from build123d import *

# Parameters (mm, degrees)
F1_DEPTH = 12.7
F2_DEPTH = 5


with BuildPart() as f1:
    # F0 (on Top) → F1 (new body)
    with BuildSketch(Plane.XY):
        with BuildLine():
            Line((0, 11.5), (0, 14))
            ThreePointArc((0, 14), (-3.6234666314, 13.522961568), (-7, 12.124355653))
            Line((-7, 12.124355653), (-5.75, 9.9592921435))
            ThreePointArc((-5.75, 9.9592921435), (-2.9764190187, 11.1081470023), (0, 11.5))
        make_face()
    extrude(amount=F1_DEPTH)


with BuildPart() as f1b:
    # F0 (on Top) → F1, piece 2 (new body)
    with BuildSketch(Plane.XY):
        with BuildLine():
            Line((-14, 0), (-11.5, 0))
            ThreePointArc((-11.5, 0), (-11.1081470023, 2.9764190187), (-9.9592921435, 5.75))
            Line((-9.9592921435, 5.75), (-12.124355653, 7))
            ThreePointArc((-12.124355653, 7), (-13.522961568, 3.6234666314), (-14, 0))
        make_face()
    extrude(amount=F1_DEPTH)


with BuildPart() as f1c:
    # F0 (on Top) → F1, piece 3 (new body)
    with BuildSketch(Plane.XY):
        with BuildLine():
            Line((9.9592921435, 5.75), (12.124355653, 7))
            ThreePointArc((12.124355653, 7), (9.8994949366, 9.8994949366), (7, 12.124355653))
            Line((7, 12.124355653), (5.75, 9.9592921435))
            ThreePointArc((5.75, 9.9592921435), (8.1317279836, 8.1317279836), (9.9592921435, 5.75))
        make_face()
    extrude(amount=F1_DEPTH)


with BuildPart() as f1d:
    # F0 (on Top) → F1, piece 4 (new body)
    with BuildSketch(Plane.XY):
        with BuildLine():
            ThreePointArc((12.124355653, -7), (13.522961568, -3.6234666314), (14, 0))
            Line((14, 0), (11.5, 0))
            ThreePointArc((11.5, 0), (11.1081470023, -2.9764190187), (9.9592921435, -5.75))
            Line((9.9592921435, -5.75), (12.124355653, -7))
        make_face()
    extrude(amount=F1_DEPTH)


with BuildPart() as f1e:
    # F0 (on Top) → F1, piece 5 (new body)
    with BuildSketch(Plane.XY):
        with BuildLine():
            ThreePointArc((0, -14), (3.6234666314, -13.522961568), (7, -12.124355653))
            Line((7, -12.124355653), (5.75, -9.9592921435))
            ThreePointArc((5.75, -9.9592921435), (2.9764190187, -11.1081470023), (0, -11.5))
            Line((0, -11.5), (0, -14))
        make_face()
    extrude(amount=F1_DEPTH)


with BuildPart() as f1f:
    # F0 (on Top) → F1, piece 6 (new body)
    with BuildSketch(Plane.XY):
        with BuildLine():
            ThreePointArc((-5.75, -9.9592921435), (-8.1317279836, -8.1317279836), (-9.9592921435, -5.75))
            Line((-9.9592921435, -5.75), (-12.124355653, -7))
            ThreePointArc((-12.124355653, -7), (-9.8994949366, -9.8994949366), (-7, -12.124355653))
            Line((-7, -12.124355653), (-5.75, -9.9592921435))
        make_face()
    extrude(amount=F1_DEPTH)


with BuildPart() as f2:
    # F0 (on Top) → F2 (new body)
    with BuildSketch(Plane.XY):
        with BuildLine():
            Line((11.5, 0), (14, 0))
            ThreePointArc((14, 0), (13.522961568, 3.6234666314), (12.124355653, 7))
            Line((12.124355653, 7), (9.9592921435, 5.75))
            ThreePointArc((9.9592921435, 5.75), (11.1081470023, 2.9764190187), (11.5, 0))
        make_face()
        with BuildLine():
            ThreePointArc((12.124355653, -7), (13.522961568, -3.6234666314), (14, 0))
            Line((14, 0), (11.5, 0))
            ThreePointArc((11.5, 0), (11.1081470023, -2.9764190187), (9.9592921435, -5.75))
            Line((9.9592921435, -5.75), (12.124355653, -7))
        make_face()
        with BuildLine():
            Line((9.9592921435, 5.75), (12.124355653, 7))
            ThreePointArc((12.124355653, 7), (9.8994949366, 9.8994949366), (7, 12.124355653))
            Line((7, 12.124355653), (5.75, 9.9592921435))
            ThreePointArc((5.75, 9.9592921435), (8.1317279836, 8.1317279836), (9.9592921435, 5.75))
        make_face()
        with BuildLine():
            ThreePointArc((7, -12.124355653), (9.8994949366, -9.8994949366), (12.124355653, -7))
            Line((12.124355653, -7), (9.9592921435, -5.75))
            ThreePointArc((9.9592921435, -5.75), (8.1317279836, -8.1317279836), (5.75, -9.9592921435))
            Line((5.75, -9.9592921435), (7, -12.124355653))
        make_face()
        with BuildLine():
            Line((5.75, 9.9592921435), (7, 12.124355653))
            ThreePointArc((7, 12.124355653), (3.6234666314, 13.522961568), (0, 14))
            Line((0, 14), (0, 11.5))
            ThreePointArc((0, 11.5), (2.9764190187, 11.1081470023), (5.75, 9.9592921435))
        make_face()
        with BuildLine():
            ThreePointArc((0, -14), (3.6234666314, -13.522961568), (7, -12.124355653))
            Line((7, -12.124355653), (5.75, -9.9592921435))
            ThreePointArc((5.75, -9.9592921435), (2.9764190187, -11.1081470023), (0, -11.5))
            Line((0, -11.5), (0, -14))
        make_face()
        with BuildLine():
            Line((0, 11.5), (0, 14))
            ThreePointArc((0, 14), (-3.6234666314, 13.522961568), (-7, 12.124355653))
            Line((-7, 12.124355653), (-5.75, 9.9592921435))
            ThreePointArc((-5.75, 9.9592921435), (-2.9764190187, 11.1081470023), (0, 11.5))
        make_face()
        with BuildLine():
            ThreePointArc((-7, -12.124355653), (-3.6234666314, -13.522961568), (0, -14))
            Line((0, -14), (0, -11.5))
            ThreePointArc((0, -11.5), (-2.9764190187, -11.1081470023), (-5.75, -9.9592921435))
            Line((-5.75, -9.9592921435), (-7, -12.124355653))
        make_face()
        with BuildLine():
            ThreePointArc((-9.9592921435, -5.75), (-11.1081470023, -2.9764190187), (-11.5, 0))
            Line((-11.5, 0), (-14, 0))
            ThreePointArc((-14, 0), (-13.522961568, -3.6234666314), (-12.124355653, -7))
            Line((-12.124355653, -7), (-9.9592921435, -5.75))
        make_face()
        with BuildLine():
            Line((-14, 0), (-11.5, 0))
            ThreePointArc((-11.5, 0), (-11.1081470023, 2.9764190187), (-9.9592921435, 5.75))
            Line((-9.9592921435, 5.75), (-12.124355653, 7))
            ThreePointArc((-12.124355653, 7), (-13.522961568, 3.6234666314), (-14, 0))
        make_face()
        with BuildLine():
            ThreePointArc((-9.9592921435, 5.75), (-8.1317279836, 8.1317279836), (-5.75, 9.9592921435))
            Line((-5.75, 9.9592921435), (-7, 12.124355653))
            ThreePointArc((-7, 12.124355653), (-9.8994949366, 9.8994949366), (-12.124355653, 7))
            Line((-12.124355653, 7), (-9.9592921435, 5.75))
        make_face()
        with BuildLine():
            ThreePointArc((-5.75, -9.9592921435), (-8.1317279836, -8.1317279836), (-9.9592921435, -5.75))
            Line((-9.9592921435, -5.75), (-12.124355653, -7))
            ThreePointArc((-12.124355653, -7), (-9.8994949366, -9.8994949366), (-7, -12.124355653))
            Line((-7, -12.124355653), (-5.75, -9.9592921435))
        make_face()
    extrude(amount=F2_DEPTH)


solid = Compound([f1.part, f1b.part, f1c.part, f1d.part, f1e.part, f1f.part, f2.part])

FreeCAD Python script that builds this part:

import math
import FreeCAD as App
import Part
import Sketcher
Q = App.Units.Quantity

doc = App.newDocument("Part")
body = doc.addObject("PartDesign::Body", "Body")

# Sketch on XY plane
sketch1 = body.newObject("Sketcher::SketchObject", "Sketch")
sketch1.AttachmentSupport = (doc.getObject("XY_Plane"), [""])
sketch1.MapMode = "FlatFace"
sketch1.addGeometry([
    Part.LineSegment(App.Vector(0, 11.5, 0), App.Vector(0, 14, 0)),
    Part.ArcOfCircle(Part.Circle(App.Vector(0, 0, 0), App.Vector(0, 0, 1), 14), math.radians(90), math.radians(120)),
    Part.LineSegment(App.Vector(-7, 12.1, 0), App.Vector(-5.8, 10, 0)),
    Part.ArcOfCircle(Part.Circle(App.Vector(0, 0, 0), App.Vector(0, 0, 1), 11.5), math.radians(90), math.radians(120)),
], False)
sketch1.addConstraint([
    Sketcher.Constraint("Coincident", 0, 2, 1, 1),
    Sketcher.Constraint("Coincident", 1, 2, 2, 1),
    Sketcher.Constraint("Coincident", 2, 2, 3, 2),
    Sketcher.Constraint("Coincident", 3, 1, 0, 1),
    Sketcher.Constraint("Vertical", 0),
    Sketcher.Constraint("Coincident", 1, 3, -1, 1),
    Sketcher.Constraint("Coincident", 3, 3, -1, 1),
    Sketcher.Constraint("PointOnObject", 0, 2, -2),
    Sketcher.Constraint("Radius", 1, 14.0),
    Sketcher.Constraint("Radius", 3, 11.5),
    Sketcher.Constraint("Angle", 2, Q("-60 deg")),
    Sketcher.Constraint("DistanceX", 1, 2, -1, 1, 7.0),
])
pad1 = body.newObject("PartDesign::Pad", "Pad")
pad1.Profile = sketch1
pad1.Length = 12.7
body2 = doc.addObject("PartDesign::Body", "Body001")

# Sketch on XY plane
sketch2 = body2.newObject("Sketcher::SketchObject", "Sketch001")
sketch2.AttachmentSupport = (doc.getObject("XY_Plane001"), [""])
sketch2.MapMode = "FlatFace"
sketch2.addGeometry([
    Part.LineSegment(App.Vector(-14, 0, 0), App.Vector(-11.5, 0, 0)),
    Part.ArcOfCircle(Part.Circle(App.Vector(0, 0, 0), App.Vector(0, 0, 1), 11.5), math.radians(150), math.radians(180)),
    Part.LineSegment(App.Vector(-10, 5.8, 0), App.Vector(-12.1, 7, 0)),
    Part.ArcOfCircle(Part.Circle(App.Vector(0, 0, 0), App.Vector(0, 0, 1), 14), math.radians(150), math.radians(180)),
], False)
sketch2.addConstraint([
    Sketcher.Constraint("Coincident", 0, 2, 1, 2),
    Sketcher.Constraint("Coincident", 1, 1, 2, 1),
    Sketcher.Constraint("Coincident", 2, 2, 3, 1),
    Sketcher.Constraint("Coincident", 3, 2, 0, 1),
    Sketcher.Constraint("Horizontal", 0),
    Sketcher.Constraint("Coincident", 1, 3, -1, 1),
    Sketcher.Constraint("Coincident", 3, 3, -1, 1),
    Sketcher.Constraint("PointOnObject", 0, 2, -1),
    Sketcher.Constraint("Radius", 3, 14.0),
    Sketcher.Constraint("Radius", 1, 11.5),
    Sketcher.Constraint("Angle", 2, Q("150 deg")),
    Sketcher.Constraint("DistanceY", -1, 1, 2, 2, 7.0),
])
pad2 = body2.newObject("PartDesign::Pad", "Pad001")
pad2.Profile = sketch2
pad2.Length = 12.7
body3 = doc.addObject("PartDesign::Body", "Body002")

# Sketch on XY plane
sketch3 = body3.newObject("Sketcher::SketchObject", "Sketch002")
sketch3.AttachmentSupport = (doc.getObject("XY_Plane002"), [""])
sketch3.MapMode = "FlatFace"
sketch3.addGeometry([
    Part.LineSegment(App.Vector(10, 5.8, 0), App.Vector(12.1, 7, 0)),
    Part.ArcOfCircle(Part.Circle(App.Vector(0, 0, 0), App.Vector(0, 0, 1), 14), math.radians(30), math.radians(60)),
    Part.LineSegment(App.Vector(7, 12.1, 0), App.Vector(5.8, 10, 0)),
    Part.ArcOfCircle(Part.Circle(App.Vector(0, 0, 0), App.Vector(0, 0, 1), 11.5), math.radians(30), math.radians(60)),
], False)
sketch3.addConstraint([
    Sketcher.Constraint("Coincident", 0, 2, 1, 1),
    Sketcher.Constraint("Coincident", 1, 2, 2, 1),
    Sketcher.Constraint("Coincident", 2, 2, 3, 2),
    Sketcher.Constraint("Coincident", 3, 1, 0, 1),
    Sketcher.Constraint("Coincident", 1, 3, -1, 1),
    Sketcher.Constraint("Coincident", 3, 3, -1, 1),
    Sketcher.Constraint("Radius", 1, 14.0),
    Sketcher.Constraint("Radius", 3, 11.5),
    Sketcher.Constraint("Angle", 0, Q("30 deg")),
    Sketcher.Constraint("Angle", 2, Q("-120 deg")),
    Sketcher.Constraint("DistanceY", -1, 1, 0, 2, 7.0),
    Sketcher.Constraint("DistanceX", -1, 1, 1, 2, 7.0),
])
pad3 = body3.newObject("PartDesign::Pad", "Pad002")
pad3.Profile = sketch3
pad3.Length = 12.7
body4 = doc.addObject("PartDesign::Body", "Body003")

# Sketch on XY plane
sketch4 = body4.newObject("Sketcher::SketchObject", "Sketch003")
sketch4.AttachmentSupport = (doc.getObject("XY_Plane003"), [""])
sketch4.MapMode = "FlatFace"
sketch4.addGeometry([
    Part.ArcOfCircle(Part.Circle(App.Vector(0, 0, 0), App.Vector(0, 0, 1), 14), math.radians(-30), math.radians(0)),
    Part.LineSegment(App.Vector(14, 0, 0), App.Vector(11.5, 0, 0)),
    Part.ArcOfCircle(Part.Circle(App.Vector(0, 0, 0), App.Vector(0, 0, 1), 11.5), math.radians(-30), math.radians(0)),
    Part.LineSegment(App.Vector(10, -5.8, 0), App.Vector(12.1, -7, 0)),
], False)
sketch4.addConstraint([
    Sketcher.Constraint("Coincident", 0, 2, 1, 1),
    Sketcher.Constraint("Coincident", 1, 2, 2, 2),
    Sketcher.Constraint("Coincident", 2, 1, 3, 1),
    Sketcher.Constraint("Coincident", 3, 2, 0, 1),
    Sketcher.Constraint("Horizontal", 1),
    Sketcher.Constraint("Coincident", 0, 3, -1, 1),
    Sketcher.Constraint("Coincident", 2, 3, -1, 1),
    Sketcher.Constraint("PointOnObject", 0, 2, -1),
    Sketcher.Constraint("Radius", 0, 14.0),
    Sketcher.Constraint("Radius", 2, 11.5),
    Sketcher.Constraint("Angle", 3, Q("-30 deg")),
    Sketcher.Constraint("DistanceY", 3, 2, -1, 1, 7.0),
])
pad4 = body4.newObject("PartDesign::Pad", "Pad003")
pad4.Profile = sketch4
pad4.Length = 12.7
body5 = doc.addObject("PartDesign::Body", "Body004")

# Sketch on XY plane
sketch5 = body5.newObject("Sketcher::SketchObject", "Sketch004")
sketch5.AttachmentSupport = (doc.getObject("XY_Plane004"), [""])
sketch5.MapMode = "FlatFace"
sketch5.addGeometry([
    Part.ArcOfCircle(Part.Circle(App.Vector(0, 0, 0), App.Vector(0, 0, 1), 14), math.radians(-90), math.radians(-60)),
    Part.LineSegment(App.Vector(7, -12.1, 0), App.Vector(5.8, -10, 0)),
    Part.ArcOfCircle(Part.Circle(App.Vector(0, 0, 0), App.Vector(0, 0, 1), 11.5), math.radians(-90), math.radians(-60)),
    Part.LineSegment(App.Vector(0, -11.5, 0), App.Vector(0, -14, 0)),
], False)
sketch5.addConstraint([
    Sketcher.Constraint("Coincident", 0, 2, 1, 1),
    Sketcher.Constraint("Coincident", 1, 2, 2, 2),
    Sketcher.Constraint("Coincident", 2, 1, 3, 1),
    Sketcher.Constraint("Coincident", 3, 2, 0, 1),
    Sketcher.Constraint("Vertical", 3),
    Sketcher.Constraint("Coincident", 0, 3, -1, 1),
    Sketcher.Constraint("Coincident", 2, 3, -1, 1),
    Sketcher.Constraint("PointOnObject", 2, 1, -2),
    Sketcher.Constraint("Radius", 0, 14.0),
    Sketcher.Constraint("Radius", 2, 11.5),
    Sketcher.Constraint("Angle", 1, Q("120 deg")),
    Sketcher.Constraint("DistanceX", -1, 1, 0, 2, 7.0),
])
pad5 = body5.newObject("PartDesign::Pad", "Pad004")
pad5.Profile = sketch5
pad5.Length = 12.7
body6 = doc.addObject("PartDesign::Body", "Body005")

# Sketch on XY plane
sketch6 = body6.newObject("Sketcher::SketchObject", "Sketch005")
sketch6.AttachmentSupport = (doc.getObject("XY_Plane005"), [""])
sketch6.MapMode = "FlatFace"
sketch6.addGeometry([
    Part.ArcOfCircle(Part.Circle(App.Vector(0, 0, 0), App.Vector(0, 0, 1), 11.5), math.radians(-150), math.radians(-120)),
    Part.LineSegment(App.Vector(-10, -5.8, 0), App.Vector(-12.1, -7, 0)),
    Part.ArcOfCircle(Part.Circle(App.Vector(0, 0, 0), App.Vector(0, 0, 1), 14), math.radians(-150), math.radians(-120)),
    Part.LineSegment(App.Vector(-7, -12.1, 0), App.Vector(-5.8, -10, 0)),
], False)
sketch6.addConstraint([
    Sketcher.Constraint("Coincident", 0, 1, 1, 1),
    Sketcher.Constraint("Coincident", 1, 2, 2, 1),
    Sketcher.Constraint("Coincident", 2, 2, 3, 1),
    Sketcher.Constraint("Coincident", 3, 2, 0, 2),
    Sketcher.Constraint("Coincident", 0, 3, -1, 1),
    Sketcher.Constraint("Coincident", 2, 3, -1, 1),
    Sketcher.Constraint("Radius", 2, 14.0),
    Sketcher.Constraint("Radius", 0, 11.5),
    Sketcher.Constraint("Angle", 1, Q("-150 deg")),
    Sketcher.Constraint("Angle", 3, Q("60 deg")),
    Sketcher.Constraint("DistanceY", 1, 2, -1, 1, 7.0),
    Sketcher.Constraint("DistanceX", 2, 2, -1, 1, 7.0),
])
pad6 = body6.newObject("PartDesign::Pad", "Pad005")
pad6.Profile = sketch6
pad6.Length = 12.7
body7 = doc.addObject("PartDesign::Body", "Body006")

# Sketch on XY plane
sketch7 = body7.newObject("Sketcher::SketchObject", "Sketch006")
sketch7.AttachmentSupport = (doc.getObject("XY_Plane006"), [""])
sketch7.MapMode = "FlatFace"
sketch7.addGeometry([
    Part.ArcOfCircle(Part.Circle(App.Vector(0, 0, 0), App.Vector(0, 0, 1), 14), math.radians(0), math.radians(30)),  # 0
    Part.ArcOfCircle(Part.Circle(App.Vector(0, 0, 0), App.Vector(0, 0, 1), 14), math.radians(30), math.radians(60)),  # 1
    Part.ArcOfCircle(Part.Circle(App.Vector(0, 0, 0), App.Vector(0, 0, 1), 14), math.radians(60), math.radians(90)),  # 2
    Part.ArcOfCircle(Part.Circle(App.Vector(0, 0, 0), App.Vector(0, 0, 1), 14), math.radians(90), math.radians(120)),  # 3
    Part.ArcOfCircle(Part.Circle(App.Vector(0, 0, 0), App.Vector(0, 0, 1), 14), math.radians(120), math.radians(150)),  # 4
    Part.ArcOfCircle(Part.Circle(App.Vector(0, 0, 0), App.Vector(0, 0, 1), 14), math.radians(150), math.radians(180)),  # 5
    Part.ArcOfCircle(Part.Circle(App.Vector(0, 0, 0), App.Vector(0, 0, 1), 14), math.radians(180), math.radians(210)),  # 6
    Part.ArcOfCircle(Part.Circle(App.Vector(0, 0, 0), App.Vector(0, 0, 1), 14), math.radians(-150), math.radians(-120)),  # 7
    Part.ArcOfCircle(Part.Circle(App.Vector(0, 0, 0), App.Vector(0, 0, 1), 14), math.radians(-120), math.radians(-90)),  # 8
    Part.ArcOfCircle(Part.Circle(App.Vector(0, 0, 0), App.Vector(0, 0, 1), 14), math.radians(-90), math.radians(-60)),  # 9
    Part.ArcOfCircle(Part.Circle(App.Vector(0, 0, 0), App.Vector(0, 0, 1), 14), math.radians(-60), math.radians(-30)),  # 10
    Part.ArcOfCircle(Part.Circle(App.Vector(0, 0, 0), App.Vector(0, 0, 1), 14), math.radians(-30), math.radians(0)),  # 11
    Part.ArcOfCircle(Part.Circle(App.Vector(0, 0, 0), App.Vector(0, 0, 1), 12), math.radians(180), math.radians(210)),  # 12
    Part.ArcOfCircle(Part.Circle(App.Vector(0, 0, 0), App.Vector(0, 0, 1), 12), math.radians(150), math.radians(180)),  # 13
    Part.ArcOfCircle(Part.Circle(App.Vector(0, 0, 0), App.Vector(0, 0, 1), 12), math.radians(120), math.radians(150)),  # 14
    Part.ArcOfCircle(Part.Circle(App.Vector(0, 0, 0), App.Vector(0, 0, 1), 12), math.radians(90), math.radians(120)),  # 15
    Part.ArcOfCircle(Part.Circle(App.Vector(0, 0, 0), App.Vector(0, 0, 1), 12), math.radians(60), math.radians(90)),  # 16
    Part.ArcOfCircle(Part.Circle(App.Vector(0, 0, 0), App.Vector(0, 0, 1), 12), math.radians(30), math.radians(60)),  # 17
    Part.ArcOfCircle(Part.Circle(App.Vector(0, 0, 0), App.Vector(0, 0, 1), 12), math.radians(0), math.radians(30)),  # 18
    Part.ArcOfCircle(Part.Circle(App.Vector(0, 0, 0), App.Vector(0, 0, 1), 12), math.radians(-30), math.radians(0)),  # 19
    Part.ArcOfCircle(Part.Circle(App.Vector(0, 0, 0), App.Vector(0, 0, 1), 12), math.radians(-60), math.radians(-30)),  # 20
    Part.ArcOfCircle(Part.Circle(App.Vector(0, 0, 0), App.Vector(0, 0, 1), 12), math.radians(-90), math.radians(-60)),  # 21
    Part.ArcOfCircle(Part.Circle(App.Vector(0, 0, 0), App.Vector(0, 0, 1), 12), math.radians(-120), math.radians(-90)),  # 22
    Part.ArcOfCircle(Part.Circle(App.Vector(0, 0, 0), App.Vector(0, 0, 1), 12), math.radians(-150), math.radians(-120)),  # 23
], False)
sketch7.addConstraint([
    Sketcher.Constraint("Tangent", 0, 2, 1, 1),
    Sketcher.Constraint("Tangent", 1, 2, 2, 1),
    Sketcher.Constraint("Tangent", 2, 2, 3, 1),
    Sketcher.Constraint("Tangent", 3, 2, 4, 1),
    Sketcher.Constraint("Tangent", 4, 2, 5, 1),
    Sketcher.Constraint("Tangent", 5, 2, 6, 1),
    Sketcher.Constraint("Tangent", 6, 2, 7, 1),
    Sketcher.Constraint("Tangent", 7, 2, 8, 1),
    Sketcher.Constraint("Tangent", 8, 2, 9, 1),
    Sketcher.Constraint("Tangent", 9, 2, 10, 1),
    Sketcher.Constraint("Tangent", 10, 2, 11, 1),
    Sketcher.Constraint("Tangent", 11, 2, 0, 1),
    Sketcher.Constraint("Tangent", 12, 1, 13, 2),
    Sketcher.Constraint("Tangent", 13, 1, 14, 2),
    Sketcher.Constraint("Tangent", 14, 1, 15, 2),
    Sketcher.Constraint("Tangent", 15, 1, 16, 2),
    Sketcher.Constraint("Tangent", 16, 1, 17, 2),
    Sketcher.Constraint("Tangent", 17, 1, 18, 2),
    Sketcher.Constraint("Tangent", 18, 1, 19, 2),
    Sketcher.Constraint("Tangent", 19, 1, 20, 2),
    Sketcher.Constraint("Tangent", 20, 1, 21, 2),
    Sketcher.Constraint("Tangent", 21, 1, 22, 2),
    Sketcher.Constraint("Tangent", 22, 1, 23, 2),
    Sketcher.Constraint("Tangent", 23, 1, 12, 2),
    Sketcher.Constraint("Coincident", 0, 3, -1, 1),
    Sketcher.Constraint("Coincident", 2, 3, -1, 1),
    Sketcher.Constraint("Coincident", 4, 3, -1, 1),
    Sketcher.Constraint("Coincident", 6, 3, -1, 1),
    Sketcher.Constraint("Coincident", 8, 3, -1, 1),
    Sketcher.Constraint("Coincident", 12, 3, -1, 1),
    Sketcher.Constraint("Coincident", 14, 3, -1, 1),
    Sketcher.Constraint("Coincident", 16, 3, -1, 1),
    Sketcher.Constraint("Coincident", 18, 3, -1, 1),
    Sketcher.Constraint("Coincident", 20, 3, -1, 1),
    Sketcher.Constraint("Equal", 8, 9),
    Sketcher.Constraint("Equal", 20, 21),
    Sketcher.Constraint("PointOnObject", 2, 2, -2),
    Sketcher.Constraint("PointOnObject", 5, 2, -1),
    Sketcher.Constraint("PointOnObject", 8, 2, -2),
    Sketcher.Constraint("PointOnObject", 11, 2, -1),
    Sketcher.Constraint("PointOnObject", 12, 1, -1),
    Sketcher.Constraint("PointOnObject", 15, 1, -2),
    Sketcher.Constraint("PointOnObject", 18, 1, -1),
    Sketcher.Constraint("PointOnObject", 21, 1, -2),
    Sketcher.Constraint("Horizontal", 1, 2, 3, 2),
    Sketcher.Constraint("Horizontal", 0, 2, 4, 2),
    Sketcher.Constraint("Horizontal", 7, 2, 9, 2),
    Sketcher.Constraint("Horizontal", 6, 2, 10, 2),
    Sketcher.Constraint("Horizontal", 14, 1, 16, 1),
    Sketcher.Constraint("Horizontal", 13, 1, 17, 1),
    Sketcher.Constraint("Horizontal", 20, 1, 22, 1),
    Sketcher.Constraint("Horizontal", 19, 1, 23, 1),
    Sketcher.Constraint("Vertical", 4, 2, 6, 2),
    Sketcher.Constraint("Vertical", 3, 2, 7, 2),
    Sketcher.Constraint("Vertical", 17, 1, 19, 1),
    Sketcher.Constraint("Vertical", 16, 1, 20, 1),
    Sketcher.Constraint("Radius", 0, 14.0),
    Sketcher.Constraint("Radius", 12, 11.5),
    Sketcher.Constraint("DistanceY", -1, 1, 0, 2, 7.0),
    Sketcher.Constraint("DistanceX", -1, 1, 1, 2, 7.0),
    Sketcher.Constraint("DistanceY", -1, 1, 13, 1, 5.75),
    Sketcher.Constraint("DistanceX", 14, 1, -1, 1, 5.75),
])
pad7 = body7.newObject("PartDesign::Pad", "Pad006")
pad7.Profile = sketch7
pad7.Length = 5

doc.recompute()
